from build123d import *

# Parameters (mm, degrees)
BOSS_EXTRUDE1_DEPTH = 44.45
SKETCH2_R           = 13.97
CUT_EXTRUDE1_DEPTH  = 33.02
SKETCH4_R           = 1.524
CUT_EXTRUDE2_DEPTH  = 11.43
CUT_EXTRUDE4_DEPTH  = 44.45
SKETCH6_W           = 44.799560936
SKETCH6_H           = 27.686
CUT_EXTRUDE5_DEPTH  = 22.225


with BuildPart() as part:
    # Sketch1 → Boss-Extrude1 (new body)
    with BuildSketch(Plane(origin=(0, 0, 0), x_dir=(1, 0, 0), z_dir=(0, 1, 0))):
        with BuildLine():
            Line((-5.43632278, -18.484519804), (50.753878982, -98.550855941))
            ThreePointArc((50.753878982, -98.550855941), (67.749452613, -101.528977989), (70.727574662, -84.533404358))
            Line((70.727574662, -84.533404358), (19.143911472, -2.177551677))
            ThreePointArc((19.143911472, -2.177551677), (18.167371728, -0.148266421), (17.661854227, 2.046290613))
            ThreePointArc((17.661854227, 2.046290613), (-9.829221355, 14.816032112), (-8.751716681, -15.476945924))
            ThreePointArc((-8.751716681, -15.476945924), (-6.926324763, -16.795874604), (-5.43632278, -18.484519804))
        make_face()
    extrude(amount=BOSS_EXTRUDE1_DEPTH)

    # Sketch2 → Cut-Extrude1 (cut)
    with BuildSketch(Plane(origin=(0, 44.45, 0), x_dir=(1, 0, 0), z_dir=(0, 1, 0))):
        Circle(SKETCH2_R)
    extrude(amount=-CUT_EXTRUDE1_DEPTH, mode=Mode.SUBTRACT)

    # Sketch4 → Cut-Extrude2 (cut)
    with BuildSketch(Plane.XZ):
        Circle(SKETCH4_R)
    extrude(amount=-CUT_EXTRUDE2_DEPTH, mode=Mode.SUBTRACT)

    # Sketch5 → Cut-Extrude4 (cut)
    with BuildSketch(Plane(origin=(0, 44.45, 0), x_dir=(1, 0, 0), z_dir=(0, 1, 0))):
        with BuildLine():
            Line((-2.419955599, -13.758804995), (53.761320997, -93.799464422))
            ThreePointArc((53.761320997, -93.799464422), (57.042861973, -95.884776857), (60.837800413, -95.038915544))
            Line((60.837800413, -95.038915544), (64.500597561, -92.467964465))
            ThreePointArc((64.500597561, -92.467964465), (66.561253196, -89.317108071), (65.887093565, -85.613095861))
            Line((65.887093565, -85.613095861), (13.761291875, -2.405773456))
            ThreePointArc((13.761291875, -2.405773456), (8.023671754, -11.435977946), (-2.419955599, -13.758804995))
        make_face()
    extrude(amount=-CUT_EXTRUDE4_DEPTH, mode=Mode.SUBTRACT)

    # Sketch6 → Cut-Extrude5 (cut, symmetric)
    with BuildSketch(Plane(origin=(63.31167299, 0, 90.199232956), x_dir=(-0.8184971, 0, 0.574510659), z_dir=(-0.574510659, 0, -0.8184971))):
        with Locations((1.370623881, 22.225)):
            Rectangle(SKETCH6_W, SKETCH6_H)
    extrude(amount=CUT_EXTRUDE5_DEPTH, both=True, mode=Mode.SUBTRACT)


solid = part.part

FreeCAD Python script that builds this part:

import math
import FreeCAD as App
import Part
import Sketcher
Q = App.Units.Quantity

doc = App.newDocument("Part")
body = doc.addObject("PartDesign::Body", "Body")

# Sketch on XZ plane
sketch1 = body.newObject("Sketcher::SketchObject", "Sketch")
sketch1.AttachmentSupport = (doc.getObject("XZ_Plane"), [""])
sketch1.MapMode = "FlatFace"
sketch1.addGeometry([
    Part.LineSegment(App.Vector(-5.436323, 18.48452, 0), App.Vector(50.753879, 98.550856, 0)),  # 0
    Part.ArcOfCircle(Part.Circle(App.Vector(60.740727, 91.54213, 0), App.Vector(0, 0, 1), 12.200794), math.radians(-35.061009), math.radians(144.938991)),  # 1
    Part.LineSegment(App.Vector(70.727575, 84.533404, 0), App.Vector(19.143911, 2.177552, 0)),  # 2
    Part.ArcOfCircle(Part.Circle(App.Vector(27.754342, -3.2156, 0), App.Vector(0, 0, 1), 10.16), math.radians(147.938991), math.radians(173.391215)),  # 3
    Part.ArcOfCircle(Part.Circle(App.Vector(0, 0, 0), App.Vector(0, 0, 1), 17.78), math.radians(119.486767), math.radians(353.391215)),  # 4
    Part.ArcOfCircle(Part.Circle(App.Vector(-13.752698, 24.320915, 0), App.Vector(0, 0, 1), 10.16), math.radians(-60.513233), math.radians(-35.061009)),  # 5
], False)
sketch1.addConstraint([
    Sketcher.Constraint("Coincident", 0, 2, 1, 2),
    Sketcher.Constraint("Coincident", 1, 1, 2, 1),
    Sketcher.Constraint("Coincident", 2, 2, 3, 1),
    Sketcher.Constraint("Coincident", 3, 2, 4, 2),
    Sketcher.Constraint("Coincident", 4, 1, 5, 1),
    Sketcher.Constraint("Coincident", 5, 2, 0, 1),
    Sketcher.Constraint("Coincident", 4, 3, -1, 1),
    Sketcher.Constraint("Radius", 3, Q("0.4 in")),
    Sketcher.Constraint("Radius", 4, Q("0.7 in")),
    Sketcher.Constraint("Radius", 5, Q("0.4 in")),
    Sketcher.Constraint("Radius", 1, 12.200794),
    Sketcher.Constraint("DistanceY", 3, 3, -1, 1, 3.2156),
    Sketcher.Constraint("DistanceY", -1, 1, 1, 3, 91.54213),
    Sketcher.Constraint("DistanceX", -1, 1, 0, 2, 50.753879),
    Sketcher.Constraint("DistanceX", -1, 1, 2, 2, 19.143911),
    Sketcher.Constraint("DistanceY", 3, 2, -1, 1, 2.046291),
    Sketcher.Constraint("DistanceY", -1, 1, 5, 2, 18.48452),
    Sketcher.Constraint("DistanceX", 5, 3, 3, 3, 41.50704),
    Sketcher.Constraint("DistanceY", 5, 3, 0, 2, 74.229941),
    Sketcher.Constraint("DistanceY", 1, 1, 0, 2, 14.017452),
    Sketcher.Constraint("DistanceX", 5, 3, 4, 1, 5.000981),
])
pad1 = body.newObject("PartDesign::Pad", "Pad")
pad1.Profile = sketch1
pad1.Length = Q("1.75 in")
pad1.Reversed = True

# Sketch on XZ plane
sketch2 = body.newObject("Sketcher::SketchObject", "Sketch001")
sketch2.AttachmentSupport = (doc.getObject("XZ_Plane"), [""])
sketch2.MapMode = "FlatFace"
sketch2.AttachmentOffset = App.Placement(App.Vector(0, 0, -1.75 * 25.4), App.Rotation())
sketch2.addGeometry(Part.Circle(App.Vector(0, 0, 0), App.Vector(0, 0, 1), 14), False)
sketch2.addConstraint([
    Sketcher.Constraint("Coincident", 0, 3, -1, 1),
    Sketcher.Constraint("Diameter", 0, Q("1.1 in")),
])
pocket1 = body.newObject("PartDesign::Pocket", "Pocket")
pocket1.Profile = sketch2
pocket1.Length = Q("1.3 in")
pocket1.Reversed = True

# Sketch on XZ plane
sketch3 = body.newObject("Sketcher::SketchObject", "Sketch002")
sketch3.AttachmentSupport = (doc.getObject("XZ_Plane"), [""])
sketch3.MapMode = "FlatFace"
sketch3.addGeometry(Part.Circle(App.Vector(0, 0, 0), App.Vector(0, 0, 1), 1.5), False)
sketch3.addConstraint([
    Sketcher.Constraint("Coincident", 0, 3, -1, 1),
    Sketcher.Constraint("Diameter", 0, Q("0.12 in")),
])
pocket2 = body.newObject("PartDesign::Pocket", "Pocket001")
pocket2.Profile = sketch3
pocket2.Length = Q("0.45 in")

# Sketch on XZ plane
sketch4 = body.newObject("Sketcher::SketchObject", "Sketch003")
sketch4.AttachmentSupport = (doc.getObject("XZ_Plane"), [""])
sketch4.MapMode = "FlatFace"
sketch4.AttachmentOffset = App.Placement(App.Vector(0, 0, -1.75 * 25.4), App.Rotation())
sketch4.addGeometry([
    Part.LineSegment(App.Vector(-2.4, 13.8, 0), App.Vector(53.8, 93.8, 0)),  # 0
    Part.ArcOfCircle(Part.Circle(App.Vector(57.9, 90.9, 0), App.Vector(0, 0, 1), 5.1), math.radians(55), math.radians(145)),  # 1
    Part.LineSegment(App.Vector(60.8, 95, 0), App.Vector(64.5, 92.5, 0)),  # 2
    Part.ArcOfCircle(Part.Circle(App.Vector(61.6, 88.3, 0), App.Vector(0, 0, 1), 5.1), math.radians(-32), math.radians(55)),  # 3
    Part.LineSegment(App.Vector(65.9, 85.6, 0), App.Vector(13.8, 2.4, 0)),  # 4
    Part.ArcOfCircle(Part.Circle(App.Vector(0, 0, 0), App.Vector(0, 0, 1), 14), math.radians(10), math.radians(100)),  # 5
], False)
sketch4.addConstraint([
    Sketcher.Constraint("Tangent", 0, 2, 1, 2),
    Sketcher.Constraint("Tangent", 1, 1, 2, 1),
    Sketcher.Constraint("Tangent", 2, 2, 3, 2),
    Sketcher.Constraint("Tangent", 3, 1, 4, 1),
    Sketcher.Constraint("Coincident", 4, 2, 5, 1),
    Sketcher.Constraint("Coincident", 5, 2, 0, 1),
    Sketcher.Constraint("Coincident", 5, 3, -1, 1),
    Sketcher.Constraint("Equal", 1, 3),
    Sketcher.Constraint("Perpendicular", 0, 2),
    Sketcher.Constraint("Radius", 1, Q("0.2 in")),
    Sketcher.Constraint("Radius", 5, Q("0.55 in")),
    Sketcher.Constraint("DistanceY", -1, 1, 3, 3, 88.309999),
    Sketcher.Constraint("DistanceX", -1, 1, 1, 1, 60.8378),
    Sketcher.Constraint("DistanceY", 2, 2, 0, 2, 1.3315),
    Sketcher.Constraint("DistanceX", 4, 2, 3, 1, 52.125802),
    Sketcher.Constraint("Distance", 0, 97.78979),
])
pocket3 = body.newObject("PartDesign::Pocket", "Pocket002")
pocket3.Profile = sketch4
pocket3.Length = Q("1.75 in")
pocket3.Reversed = True

# Sketch on an angled plane
sketch5 = body.newObject("Sketcher::SketchObject", "Sketch004")
sketch5.Placement = App.Placement(App.Vector(63.311673, 0, 90.199233), App.Rotation(App.Vector(-0.8184971, 0, 0.574510659), App.Vector(0, 1, 0), App.Vector(-0.574510659, 0, -0.8184971), "ZXY"))
sketch5.addGeometry([
    Part.LineSegment(App.Vector(-21, 36, 0), App.Vector(-21, 8, 0)),
    Part.LineSegment(App.Vector(-21, 8, 0), App.Vector(24, 8, 0)),
    Part.LineSegment(App.Vector(24, 8, 0), App.Vector(24, 36, 0)),
    Part.LineSegment(App.Vector(24, 36, 0), App.Vector(-21, 36, 0)),
], False)
sketch5.addConstraint([
    Sketcher.Constraint("Coincident", 0, 2, 1, 1),
    Sketcher.Constraint("Coincident", 1, 2, 2, 1),
    Sketcher.Constraint("Coincident", 2, 2, 3, 1),
    Sketcher.Constraint("Coincident", 3, 2, 0, 1),
    Sketcher.Constraint("Vertical", 0),
    Sketcher.Constraint("Horizontal", 1),
    Sketcher.Constraint("Vertical", 2),
    Sketcher.Constraint("Horizontal", 3),
    Sketcher.Constraint("DistanceY", 0, 2, 0, 1, Q("1.09 in")),
    Sketcher.Constraint("DistanceY", -1, 1, 0, 2, Q("0.33 in")),
    Sketcher.Constraint("DistanceX", 1, 1, 1, 2, 44.799561),
    Sketcher.Constraint("DistanceX", 0, 2, -1, 1, 21.029157),
])
pocket4 = body.newObject("PartDesign::Pocket", "Pocket003")
pocket4.Profile = sketch5
pocket4.Length = Q("1.75 in")
pocket4.Midplane = True

doc.recompute()
